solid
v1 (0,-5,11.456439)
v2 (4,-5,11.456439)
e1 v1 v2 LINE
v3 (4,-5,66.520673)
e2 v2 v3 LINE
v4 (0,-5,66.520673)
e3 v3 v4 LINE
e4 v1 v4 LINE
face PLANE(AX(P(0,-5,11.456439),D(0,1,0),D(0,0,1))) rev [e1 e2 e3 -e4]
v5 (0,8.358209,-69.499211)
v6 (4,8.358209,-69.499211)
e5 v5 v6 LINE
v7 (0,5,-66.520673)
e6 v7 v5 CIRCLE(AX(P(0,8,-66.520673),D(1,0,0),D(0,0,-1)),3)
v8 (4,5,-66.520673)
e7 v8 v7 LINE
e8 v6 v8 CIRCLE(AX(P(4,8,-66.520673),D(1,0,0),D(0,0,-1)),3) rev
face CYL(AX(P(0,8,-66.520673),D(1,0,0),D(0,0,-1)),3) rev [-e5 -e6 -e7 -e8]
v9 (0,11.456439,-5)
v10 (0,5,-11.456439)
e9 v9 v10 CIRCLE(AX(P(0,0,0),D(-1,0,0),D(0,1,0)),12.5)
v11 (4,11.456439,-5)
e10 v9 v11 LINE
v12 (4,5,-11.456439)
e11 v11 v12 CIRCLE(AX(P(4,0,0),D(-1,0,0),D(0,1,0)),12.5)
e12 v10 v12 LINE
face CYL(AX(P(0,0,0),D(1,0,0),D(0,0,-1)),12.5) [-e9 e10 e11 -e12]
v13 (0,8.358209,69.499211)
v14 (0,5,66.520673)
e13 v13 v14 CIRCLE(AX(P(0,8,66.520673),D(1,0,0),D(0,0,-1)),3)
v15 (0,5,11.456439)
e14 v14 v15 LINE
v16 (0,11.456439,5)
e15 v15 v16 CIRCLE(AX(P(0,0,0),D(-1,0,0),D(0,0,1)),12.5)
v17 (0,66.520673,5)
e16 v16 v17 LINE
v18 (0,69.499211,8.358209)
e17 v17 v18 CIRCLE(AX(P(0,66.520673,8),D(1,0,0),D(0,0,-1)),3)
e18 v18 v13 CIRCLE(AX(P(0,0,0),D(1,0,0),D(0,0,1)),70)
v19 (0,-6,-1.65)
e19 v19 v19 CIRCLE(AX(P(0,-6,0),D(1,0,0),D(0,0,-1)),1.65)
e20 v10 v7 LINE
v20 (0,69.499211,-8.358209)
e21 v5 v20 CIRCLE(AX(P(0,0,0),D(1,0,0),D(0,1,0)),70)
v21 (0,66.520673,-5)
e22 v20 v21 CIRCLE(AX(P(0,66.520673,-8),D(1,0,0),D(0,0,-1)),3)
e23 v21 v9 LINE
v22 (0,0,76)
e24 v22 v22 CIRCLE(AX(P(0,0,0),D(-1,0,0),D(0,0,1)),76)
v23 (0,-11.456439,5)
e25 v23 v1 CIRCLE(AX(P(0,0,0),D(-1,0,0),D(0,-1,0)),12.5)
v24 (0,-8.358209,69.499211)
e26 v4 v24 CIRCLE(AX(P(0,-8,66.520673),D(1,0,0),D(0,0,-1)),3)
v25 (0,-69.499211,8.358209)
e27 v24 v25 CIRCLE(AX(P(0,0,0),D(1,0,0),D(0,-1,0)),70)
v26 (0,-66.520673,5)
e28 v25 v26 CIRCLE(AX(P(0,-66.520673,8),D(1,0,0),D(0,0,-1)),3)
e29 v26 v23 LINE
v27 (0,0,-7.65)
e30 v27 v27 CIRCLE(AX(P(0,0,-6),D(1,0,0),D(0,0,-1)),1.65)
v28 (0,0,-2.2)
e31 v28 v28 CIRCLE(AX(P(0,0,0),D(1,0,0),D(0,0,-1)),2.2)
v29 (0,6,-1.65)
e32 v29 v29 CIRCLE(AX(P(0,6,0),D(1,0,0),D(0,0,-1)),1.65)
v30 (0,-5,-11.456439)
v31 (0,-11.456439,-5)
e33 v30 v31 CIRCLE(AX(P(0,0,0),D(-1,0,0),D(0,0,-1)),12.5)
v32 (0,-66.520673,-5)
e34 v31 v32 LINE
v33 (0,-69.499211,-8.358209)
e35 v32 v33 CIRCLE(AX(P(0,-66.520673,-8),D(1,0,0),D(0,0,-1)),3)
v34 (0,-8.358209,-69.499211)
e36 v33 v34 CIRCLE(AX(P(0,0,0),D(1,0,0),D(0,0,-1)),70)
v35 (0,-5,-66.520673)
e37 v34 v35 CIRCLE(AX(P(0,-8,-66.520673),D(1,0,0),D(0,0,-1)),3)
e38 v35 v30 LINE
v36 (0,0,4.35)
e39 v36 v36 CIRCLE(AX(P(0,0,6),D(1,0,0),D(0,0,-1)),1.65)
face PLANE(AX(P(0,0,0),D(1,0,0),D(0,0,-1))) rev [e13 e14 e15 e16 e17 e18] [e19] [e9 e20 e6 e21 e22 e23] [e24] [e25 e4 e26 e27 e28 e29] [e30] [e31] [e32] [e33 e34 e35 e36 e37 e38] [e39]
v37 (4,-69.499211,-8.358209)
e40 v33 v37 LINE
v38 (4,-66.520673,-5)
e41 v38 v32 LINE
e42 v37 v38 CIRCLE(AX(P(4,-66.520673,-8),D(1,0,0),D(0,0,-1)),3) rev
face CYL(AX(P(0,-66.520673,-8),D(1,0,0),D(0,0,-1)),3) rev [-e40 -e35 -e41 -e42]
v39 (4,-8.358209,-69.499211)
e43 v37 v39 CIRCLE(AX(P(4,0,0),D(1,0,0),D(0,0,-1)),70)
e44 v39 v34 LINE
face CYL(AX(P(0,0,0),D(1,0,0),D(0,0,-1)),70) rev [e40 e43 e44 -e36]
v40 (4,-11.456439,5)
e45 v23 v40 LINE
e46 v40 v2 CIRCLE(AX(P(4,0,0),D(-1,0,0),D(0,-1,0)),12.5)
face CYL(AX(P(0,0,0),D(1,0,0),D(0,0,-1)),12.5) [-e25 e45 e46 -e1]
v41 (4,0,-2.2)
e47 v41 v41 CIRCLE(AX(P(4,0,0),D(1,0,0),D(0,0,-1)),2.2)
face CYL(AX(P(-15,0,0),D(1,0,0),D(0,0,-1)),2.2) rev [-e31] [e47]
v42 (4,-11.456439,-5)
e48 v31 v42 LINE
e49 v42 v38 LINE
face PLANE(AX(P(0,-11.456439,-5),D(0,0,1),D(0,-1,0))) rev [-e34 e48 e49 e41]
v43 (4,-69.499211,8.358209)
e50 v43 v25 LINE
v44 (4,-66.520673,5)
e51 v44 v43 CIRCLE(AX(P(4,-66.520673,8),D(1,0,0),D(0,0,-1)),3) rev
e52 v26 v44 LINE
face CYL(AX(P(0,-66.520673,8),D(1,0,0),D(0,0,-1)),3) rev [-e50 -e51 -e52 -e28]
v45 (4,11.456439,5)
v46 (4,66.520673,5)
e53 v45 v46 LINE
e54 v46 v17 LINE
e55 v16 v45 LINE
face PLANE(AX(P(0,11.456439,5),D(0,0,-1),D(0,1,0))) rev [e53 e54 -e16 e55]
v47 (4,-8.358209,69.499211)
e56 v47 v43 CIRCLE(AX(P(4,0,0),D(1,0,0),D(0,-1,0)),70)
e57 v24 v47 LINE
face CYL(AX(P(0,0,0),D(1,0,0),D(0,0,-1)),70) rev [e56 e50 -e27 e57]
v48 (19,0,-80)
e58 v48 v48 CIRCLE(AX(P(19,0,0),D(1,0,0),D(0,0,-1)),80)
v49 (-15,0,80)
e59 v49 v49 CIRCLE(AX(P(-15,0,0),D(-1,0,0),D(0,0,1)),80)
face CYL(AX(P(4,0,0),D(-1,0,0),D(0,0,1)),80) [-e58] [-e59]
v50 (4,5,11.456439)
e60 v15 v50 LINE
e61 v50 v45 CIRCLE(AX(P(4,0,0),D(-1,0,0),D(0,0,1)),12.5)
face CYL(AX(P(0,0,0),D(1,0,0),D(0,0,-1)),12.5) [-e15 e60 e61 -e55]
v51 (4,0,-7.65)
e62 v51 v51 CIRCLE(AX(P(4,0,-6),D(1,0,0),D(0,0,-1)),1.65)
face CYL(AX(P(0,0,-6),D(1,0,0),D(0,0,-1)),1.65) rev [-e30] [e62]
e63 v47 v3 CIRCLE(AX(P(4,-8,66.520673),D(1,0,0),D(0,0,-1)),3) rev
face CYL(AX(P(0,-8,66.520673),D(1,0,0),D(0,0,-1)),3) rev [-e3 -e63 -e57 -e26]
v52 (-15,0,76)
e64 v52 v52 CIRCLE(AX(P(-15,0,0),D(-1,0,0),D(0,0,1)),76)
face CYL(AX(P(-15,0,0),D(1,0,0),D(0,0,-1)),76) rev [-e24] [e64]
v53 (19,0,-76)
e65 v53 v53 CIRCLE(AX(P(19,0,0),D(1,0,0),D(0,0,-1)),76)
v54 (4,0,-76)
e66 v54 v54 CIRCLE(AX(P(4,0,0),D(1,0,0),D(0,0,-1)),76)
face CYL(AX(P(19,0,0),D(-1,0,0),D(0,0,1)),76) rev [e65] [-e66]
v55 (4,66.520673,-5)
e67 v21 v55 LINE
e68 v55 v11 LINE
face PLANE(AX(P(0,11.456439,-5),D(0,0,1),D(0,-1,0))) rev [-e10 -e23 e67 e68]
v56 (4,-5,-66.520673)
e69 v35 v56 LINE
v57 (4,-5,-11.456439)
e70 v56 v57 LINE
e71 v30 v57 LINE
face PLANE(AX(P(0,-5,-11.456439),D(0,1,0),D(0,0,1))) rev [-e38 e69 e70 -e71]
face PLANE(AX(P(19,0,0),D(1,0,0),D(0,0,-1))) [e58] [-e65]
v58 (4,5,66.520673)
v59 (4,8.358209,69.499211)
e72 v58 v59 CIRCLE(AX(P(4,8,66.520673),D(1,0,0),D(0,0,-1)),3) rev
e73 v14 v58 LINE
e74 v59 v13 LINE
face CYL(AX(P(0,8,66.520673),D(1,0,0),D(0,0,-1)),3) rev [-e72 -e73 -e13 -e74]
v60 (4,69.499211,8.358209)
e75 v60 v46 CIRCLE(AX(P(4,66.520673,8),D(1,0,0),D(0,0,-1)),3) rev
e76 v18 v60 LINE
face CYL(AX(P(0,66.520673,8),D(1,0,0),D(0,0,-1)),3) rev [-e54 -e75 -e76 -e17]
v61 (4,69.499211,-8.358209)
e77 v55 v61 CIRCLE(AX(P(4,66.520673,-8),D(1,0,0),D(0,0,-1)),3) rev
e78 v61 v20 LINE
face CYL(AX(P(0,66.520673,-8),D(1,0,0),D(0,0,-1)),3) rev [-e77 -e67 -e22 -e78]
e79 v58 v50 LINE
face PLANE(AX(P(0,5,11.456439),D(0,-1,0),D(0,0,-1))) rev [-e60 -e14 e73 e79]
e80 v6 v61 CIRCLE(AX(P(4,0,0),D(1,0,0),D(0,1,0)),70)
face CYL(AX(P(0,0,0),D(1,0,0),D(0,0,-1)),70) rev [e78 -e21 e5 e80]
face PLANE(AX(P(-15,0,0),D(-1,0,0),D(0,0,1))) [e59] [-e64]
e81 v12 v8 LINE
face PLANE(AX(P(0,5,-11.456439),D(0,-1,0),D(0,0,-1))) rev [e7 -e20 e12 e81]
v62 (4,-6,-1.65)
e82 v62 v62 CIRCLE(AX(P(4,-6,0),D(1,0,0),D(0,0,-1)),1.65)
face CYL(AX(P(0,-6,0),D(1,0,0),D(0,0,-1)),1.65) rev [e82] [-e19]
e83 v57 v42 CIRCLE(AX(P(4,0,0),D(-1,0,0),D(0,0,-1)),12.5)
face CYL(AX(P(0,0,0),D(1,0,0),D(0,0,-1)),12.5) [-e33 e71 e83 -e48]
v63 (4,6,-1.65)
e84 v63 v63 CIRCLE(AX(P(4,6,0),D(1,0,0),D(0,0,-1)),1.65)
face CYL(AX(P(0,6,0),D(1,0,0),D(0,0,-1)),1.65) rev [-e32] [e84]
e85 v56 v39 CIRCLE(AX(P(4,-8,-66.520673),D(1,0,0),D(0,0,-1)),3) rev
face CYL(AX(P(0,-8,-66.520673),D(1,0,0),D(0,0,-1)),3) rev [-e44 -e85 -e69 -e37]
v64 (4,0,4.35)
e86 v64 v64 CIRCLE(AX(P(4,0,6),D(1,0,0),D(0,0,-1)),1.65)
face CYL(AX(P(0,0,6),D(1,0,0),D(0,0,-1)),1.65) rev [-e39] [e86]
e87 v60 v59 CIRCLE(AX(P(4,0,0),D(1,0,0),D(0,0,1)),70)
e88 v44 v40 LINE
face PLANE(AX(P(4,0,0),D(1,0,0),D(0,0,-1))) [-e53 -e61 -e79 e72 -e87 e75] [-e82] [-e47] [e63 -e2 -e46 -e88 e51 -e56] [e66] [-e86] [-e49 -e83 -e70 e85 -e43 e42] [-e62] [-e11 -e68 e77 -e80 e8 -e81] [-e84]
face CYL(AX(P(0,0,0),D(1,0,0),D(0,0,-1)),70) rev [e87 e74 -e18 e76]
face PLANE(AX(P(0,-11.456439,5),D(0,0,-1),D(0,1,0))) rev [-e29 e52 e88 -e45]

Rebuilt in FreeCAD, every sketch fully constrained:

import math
import FreeCAD as App
import Part
import Sketcher
Q = App.Units.Quantity


def edges_at(feature, points):
    """Names of the edges that pass closest to the given points."""
    edges = feature.Shape.Edges
    near = lambda p: min(range(len(edges)), key=lambda i: edges[i].distToShape(Part.Vertex(*p))[0])
    return sorted({f"Edge{near(p) + 1}" for p in points})

doc = App.newDocument("Part")
body = doc.addObject("PartDesign::Body", "Body")

sketch1 = body.newObject("Sketcher::SketchObject", "Sketch")
sketch1.AttachmentSupport = (doc.getObject("YZ_Plane"), [""])
sketch1.MapMode = "FlatFace"
sketch1.addGeometry(Part.Circle(App.Vector(0, 0, 0), App.Vector(0, 0, 1), 80), False)
sketch1.addConstraint(Sketcher.Constraint("Coincident", 0, 3, -1, 1))
sketch1.addConstraint(Sketcher.Constraint("Diameter", 0, Q("160 mm")))
pad1 = body.newObject("PartDesign::Pad", "Pad")
pad1.Profile = sketch1
pad1.Length = 4

sketch2 = body.newObject("Sketcher::SketchObject", "Sketch001")
sketch2.AttachmentSupport = (doc.getObject("YZ_Plane"), [""])
sketch2.MapMode = "FlatFace"
sketch2.AttachmentOffset = App.Placement(App.Vector(0, 0, 4), App.Rotation())
sketch2.addGeometry(Part.Circle(App.Vector(0, 6, 0), App.Vector(0, 0, 1), 1.6), False)
sketch2.addGeometry(Part.Circle(App.Vector(6, 0, 0), App.Vector(0, 0, 1), 1.6), False)
sketch2.addGeometry(Part.Circle(App.Vector(0, -6, 0), App.Vector(0, 0, 1), 1.6), False)
sketch2.addGeometry(Part.Circle(App.Vector(-6, 0, 0), App.Vector(0, 0, 1), 1.6), False)
sketch2.addConstraint(Sketcher.Constraint("Equal", 0, 1))
sketch2.addConstraint(Sketcher.Constraint("Equal", 1, 2))
sketch2.addConstraint(Sketcher.Constraint("Equal", 2, 3))
sketch2.addConstraint(Sketcher.Constraint("Symmetric", 0, 3, 2, 3, -1, 1))
sketch2.addConstraint(Sketcher.Constraint("Symmetric", 1, 3, 3, 3, -1, 1))
sketch2.addConstraint(Sketcher.Constraint("PointOnObject", 0, 3, -2))
sketch2.addConstraint(Sketcher.Constraint("PointOnObject", 1, 3, -1))
sketch2.addConstraint(Sketcher.Constraint("Diameter", 0, Q("3.3 mm")))
sketch2.addConstraint(Sketcher.Constraint("DistanceY", -1, 1, 0, 3, Q("6 mm")))
sketch2.addConstraint(Sketcher.Constraint("DistanceX", -1, 1, 1, 3, Q("6 mm")))
pocket1 = body.newObject("PartDesign::Pocket", "Pocket")
pocket1.Profile = sketch2
pocket1.Type = "ThroughAll"

sketch3 = body.newObject("Sketcher::SketchObject", "Sketch002")
sketch3.AttachmentSupport = (doc.getObject("YZ_Plane"), [""])
sketch3.MapMode = "FlatFace"
sketch3.AttachmentOffset = App.Placement(App.Vector(0, 0, 4), App.Rotation())
sketch3.addGeometry(Part.LineSegment(App.Vector(11, 5, 0), App.Vector(70, 5, 0)), False)
sketch3.addGeometry(Part.ArcOfCircle(Part.Circle(App.Vector(0, 0, 0), App.Vector(0, 0, 1), 70), math.radians(4), math.radians(86)), False)
sketch3.addGeometry(Part.LineSegment(App.Vector(5, 70, 0), App.Vector(5, 11, 0)), False)
sketch3.addGeometry(Part.ArcOfCircle(Part.Circle(App.Vector(0, 0, 0), App.Vector(0, 0, 1), 12), math.radians(24), math.radians(66)), False)
sketch3.addConstraint(Sketcher.Constraint("Coincident", 0, 2, 1, 1))
sketch3.addConstraint(Sketcher.Constraint("Coincident", 1, 2, 2, 1))
sketch3.addConstraint(Sketcher.Constraint("Coincident", 2, 2, 3, 2))
sketch3.addConstraint(Sketcher.Constraint("Coincident", 3, 1, 0, 1))
sketch3.addConstraint(Sketcher.Constraint("Horizontal", 0))
sketch3.addConstraint(Sketcher.Constraint("Vertical", 2))
sketch3.addConstraint(Sketcher.Constraint("Coincident", 1, 3, -1, 1))
sketch3.addConstraint(Sketcher.Constraint("Coincident", 3, 3, -1, 1))
sketch3.addConstraint(Sketcher.Constraint("Equal", 0, 2))
sketch3.addConstraint(Sketcher.Constraint("Radius", 1, Q("70 mm")))
sketch3.addConstraint(Sketcher.Constraint("Radius", 3, Q("12.5 mm")))
sketch3.addConstraint(Sketcher.Constraint("DistanceY", -1, 1, 0, 2, Q("5 mm")))
pocket2 = body.newObject("PartDesign::Pocket", "Pocket001")
pocket2.Profile = sketch3
pocket2.Type = "ThroughAll"
doc.recompute()

polarpattern = body.newObject("PartDesign::PolarPattern", "PolarPattern")
polarpattern.Originals = [pocket2]
polarpattern.Axis = (doc.getObject("X_Axis"), [""])
polarpattern.Angle = 360
polarpattern.Occurrences = 4
body.Tip = polarpattern
doc.recompute()

fillet = body.newObject("PartDesign::Fillet", "Fillet")
fillet.Base = (polarpattern, edges_at(polarpattern, [
    (2, 5, 69.821),
    (2, 69.821, 5),
    (2, 69.821, -5),
    (2, 5, -69.821),
    (2, -5, -69.821),
    (2, -69.821, -5),
    (2, -69.821, 5),
    (2, -5, 69.821),
]))
fillet.Radius = 3

sketch4 = body.newObject("Sketcher::SketchObject", "Sketch003")
sketch4.AttachmentSupport = (doc.getObject("YZ_Plane"), [""])
sketch4.MapMode = "FlatFace"
sketch4.AttachmentOffset = App.Placement(App.Vector(0, 0, -15), App.Rotation())
sketch4.addGeometry(Part.Circle(App.Vector(0, 0, 0), App.Vector(0, 0, 1), 80), False)
sketch4.addGeometry(Part.Circle(App.Vector(0, 0, 0), App.Vector(0, 0, 1), 76), False)
sketch4.addConstraint(Sketcher.Constraint("Coincident", 0, 3, -1, 1))
sketch4.addConstraint(Sketcher.Constraint("Coincident", 1, 3, -1, 1))
sketch4.addConstraint(Sketcher.Constraint("Diameter", 0, Q("160 mm")))
sketch4.addConstraint(Sketcher.Constraint("Diameter", 1, Q("152 mm")))
pad2 = body.newObject("PartDesign::Pad", "Pad001")
pad2.Profile = sketch4
pad2.Length = 15

sketch5 = body.newObject("Sketcher::SketchObject", "Sketch004")
sketch5.AttachmentSupport = (doc.getObject("YZ_Plane"), [""])
sketch5.MapMode = "FlatFace"
sketch5.AttachmentOffset = App.Placement(App.Vector(0, 0, 4), App.Rotation())
sketch5.addGeometry(Part.Circle(App.Vector(0, 0, 0), App.Vector(0, 0, 1), 2.2), False)
sketch5.addConstraint(Sketcher.Constraint("Coincident", 0, 3, -1, 1))
sketch5.addConstraint(Sketcher.Constraint("Diameter", 0, Q("4.4 mm")))
pocket3 = body.newObject("PartDesign::Pocket", "Pocket002")
pocket3.Profile = sketch5
pocket3.Type = "ThroughAll"

sketch6 = body.newObject("Sketcher::SketchObject", "Sketch005")
sketch6.AttachmentSupport = (doc.getObject("YZ_Plane"), [""])
sketch6.MapMode = "FlatFace"
sketch6.AttachmentOffset = App.Placement(App.Vector(0, 0, 4), App.Rotation())
sketch6.addGeometry(Part.Circle(App.Vector(0, 0, 0), App.Vector(0, 0, 1), 80), False)
sketch6.addGeometry(Part.Circle(App.Vector(0, 0, 0), App.Vector(0, 0, 1), 76), False)
sketch6.addConstraint(Sketcher.Constraint("Coincident", 0, 3, -1, 1))
sketch6.addConstraint(Sketcher.Constraint("Coincident", 1, 3, -1, 1))
sketch6.addConstraint(Sketcher.Constraint("Diameter", 0, Q("160 mm")))
sketch6.addConstraint(Sketcher.Constraint("Diameter", 1, Q("152 mm")))
pad3 = body.newObject("PartDesign::Pad", "Pad002")
pad3.Profile = sketch6
pad3.Length = 15

doc.recompute()
